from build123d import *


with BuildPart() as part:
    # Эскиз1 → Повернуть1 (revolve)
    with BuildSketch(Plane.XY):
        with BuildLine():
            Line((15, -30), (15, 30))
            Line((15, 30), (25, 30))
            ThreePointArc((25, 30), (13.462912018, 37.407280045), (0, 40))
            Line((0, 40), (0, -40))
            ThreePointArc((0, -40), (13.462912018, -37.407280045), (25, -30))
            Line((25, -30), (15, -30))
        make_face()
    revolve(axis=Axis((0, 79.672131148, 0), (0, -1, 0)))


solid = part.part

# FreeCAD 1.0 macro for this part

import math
import FreeCAD as App
import Part
import Sketcher
from FreeCAD import Vector
Q = App.Units.Quantity

doc = App.newDocument("Part")
params = doc.addObject("Spreadsheet::Sheet", "Params")
for row, (alias, value) in enumerate([
    ("sketch1_width", "10 mm"),
    ("sketch1_height", "60 mm"),
    ("sketch1_height2", "80 mm"),
    ("sketch1_radius", "36.25 mm"),
    ("revolution_angle", "360 deg"),
], start=1):
    params.set(f"A{row}", alias)
    params.set(f"B{row}", "=" + value)
    params.setAlias(f"B{row}", alias)

body = doc.addObject("PartDesign::Body", "Body")

# Sketch on XY plane
sketch1 = body.newObject("Sketcher::SketchObject", "Sketch")
sketch1.AttachmentSupport = (doc.getObject("XY_Plane"), [""])
sketch1.MapMode = "FlatFace"
sketch1.addGeometry([
    Part.LineSegment(Vector(15, -30, 0), Vector(15, 30, 0)),  # 0
    Part.LineSegment(Vector(15, 30, 0), Vector(25, 30, 0)),  # 1
    Part.ArcOfCircle(Part.Circle(Vector(0, 4, 0), Vector(0, 0, 1), 36), math.radians(46), math.radians(90)),  # 2
    Part.LineSegment(Vector(0, 40, 0), Vector(0, -40, 0)),  # 3
    Part.ArcOfCircle(Part.Circle(Vector(0, -4, 0), Vector(0, 0, 1), 36), math.radians(-90), math.radians(-46)),  # 4
    Part.LineSegment(Vector(25, -30, 0), Vector(15, -30, 0)),  # 5
], False)
sketch1.addConstraint([
    Sketcher.Constraint("Coincident", 0, 2, 1, 1),
    Sketcher.Constraint("Coincident", 1, 2, 2, 1),
    Sketcher.Constraint("Coincident", 2, 2, 3, 1),
    Sketcher.Constraint("Coincident", 3, 2, 4, 1),
    Sketcher.Constraint("Coincident", 4, 2, 5, 1),
    Sketcher.Constraint("Coincident", 5, 2, 0, 1),
    Sketcher.Constraint("Vertical", 0),
    Sketcher.Constraint("Horizontal", 1),
    Sketcher.Constraint("Vertical", 3),
    Sketcher.Constraint("Horizontal", 5),
    Sketcher.Constraint("Equal", 2, 4),
    Sketcher.Constraint("Symmetric", 2, 3, 4, 3, -1, 1),
    Sketcher.Constraint("Symmetric", 1, 2, 4, 2, -1),
    Sketcher.Constraint("PointOnObject", 2, 2, -2),
    Sketcher.Constraint("DistanceX", 1, 1, 1, 2, Q("10 mm")),
    Sketcher.Constraint("DistanceY", 0, 1, 0, 2, Q("60 mm")),
    Sketcher.Constraint("DistanceY", 3, 2, 3, 1, Q("80 mm")),
    Sketcher.Constraint("Radius", 2, Q("36.25 mm")),
])
sketch1.setExpression("Constraints[14]", "Params.sketch1_width")
sketch1.setExpression("Constraints[15]", "Params.sketch1_height")
sketch1.setExpression("Constraints[16]", "Params.sketch1_height2")
sketch1.setExpression("Constraints[17]", "Params.sketch1_radius")
revolution = body.newObject("PartDesign::Revolution", "Revolution")
revolution.Profile = sketch1
revolution.ReferenceAxis = (sketch1, ["V_Axis"])
revolution.setExpression("Angle", "Params.revolution_angle")

doc.recompute()
